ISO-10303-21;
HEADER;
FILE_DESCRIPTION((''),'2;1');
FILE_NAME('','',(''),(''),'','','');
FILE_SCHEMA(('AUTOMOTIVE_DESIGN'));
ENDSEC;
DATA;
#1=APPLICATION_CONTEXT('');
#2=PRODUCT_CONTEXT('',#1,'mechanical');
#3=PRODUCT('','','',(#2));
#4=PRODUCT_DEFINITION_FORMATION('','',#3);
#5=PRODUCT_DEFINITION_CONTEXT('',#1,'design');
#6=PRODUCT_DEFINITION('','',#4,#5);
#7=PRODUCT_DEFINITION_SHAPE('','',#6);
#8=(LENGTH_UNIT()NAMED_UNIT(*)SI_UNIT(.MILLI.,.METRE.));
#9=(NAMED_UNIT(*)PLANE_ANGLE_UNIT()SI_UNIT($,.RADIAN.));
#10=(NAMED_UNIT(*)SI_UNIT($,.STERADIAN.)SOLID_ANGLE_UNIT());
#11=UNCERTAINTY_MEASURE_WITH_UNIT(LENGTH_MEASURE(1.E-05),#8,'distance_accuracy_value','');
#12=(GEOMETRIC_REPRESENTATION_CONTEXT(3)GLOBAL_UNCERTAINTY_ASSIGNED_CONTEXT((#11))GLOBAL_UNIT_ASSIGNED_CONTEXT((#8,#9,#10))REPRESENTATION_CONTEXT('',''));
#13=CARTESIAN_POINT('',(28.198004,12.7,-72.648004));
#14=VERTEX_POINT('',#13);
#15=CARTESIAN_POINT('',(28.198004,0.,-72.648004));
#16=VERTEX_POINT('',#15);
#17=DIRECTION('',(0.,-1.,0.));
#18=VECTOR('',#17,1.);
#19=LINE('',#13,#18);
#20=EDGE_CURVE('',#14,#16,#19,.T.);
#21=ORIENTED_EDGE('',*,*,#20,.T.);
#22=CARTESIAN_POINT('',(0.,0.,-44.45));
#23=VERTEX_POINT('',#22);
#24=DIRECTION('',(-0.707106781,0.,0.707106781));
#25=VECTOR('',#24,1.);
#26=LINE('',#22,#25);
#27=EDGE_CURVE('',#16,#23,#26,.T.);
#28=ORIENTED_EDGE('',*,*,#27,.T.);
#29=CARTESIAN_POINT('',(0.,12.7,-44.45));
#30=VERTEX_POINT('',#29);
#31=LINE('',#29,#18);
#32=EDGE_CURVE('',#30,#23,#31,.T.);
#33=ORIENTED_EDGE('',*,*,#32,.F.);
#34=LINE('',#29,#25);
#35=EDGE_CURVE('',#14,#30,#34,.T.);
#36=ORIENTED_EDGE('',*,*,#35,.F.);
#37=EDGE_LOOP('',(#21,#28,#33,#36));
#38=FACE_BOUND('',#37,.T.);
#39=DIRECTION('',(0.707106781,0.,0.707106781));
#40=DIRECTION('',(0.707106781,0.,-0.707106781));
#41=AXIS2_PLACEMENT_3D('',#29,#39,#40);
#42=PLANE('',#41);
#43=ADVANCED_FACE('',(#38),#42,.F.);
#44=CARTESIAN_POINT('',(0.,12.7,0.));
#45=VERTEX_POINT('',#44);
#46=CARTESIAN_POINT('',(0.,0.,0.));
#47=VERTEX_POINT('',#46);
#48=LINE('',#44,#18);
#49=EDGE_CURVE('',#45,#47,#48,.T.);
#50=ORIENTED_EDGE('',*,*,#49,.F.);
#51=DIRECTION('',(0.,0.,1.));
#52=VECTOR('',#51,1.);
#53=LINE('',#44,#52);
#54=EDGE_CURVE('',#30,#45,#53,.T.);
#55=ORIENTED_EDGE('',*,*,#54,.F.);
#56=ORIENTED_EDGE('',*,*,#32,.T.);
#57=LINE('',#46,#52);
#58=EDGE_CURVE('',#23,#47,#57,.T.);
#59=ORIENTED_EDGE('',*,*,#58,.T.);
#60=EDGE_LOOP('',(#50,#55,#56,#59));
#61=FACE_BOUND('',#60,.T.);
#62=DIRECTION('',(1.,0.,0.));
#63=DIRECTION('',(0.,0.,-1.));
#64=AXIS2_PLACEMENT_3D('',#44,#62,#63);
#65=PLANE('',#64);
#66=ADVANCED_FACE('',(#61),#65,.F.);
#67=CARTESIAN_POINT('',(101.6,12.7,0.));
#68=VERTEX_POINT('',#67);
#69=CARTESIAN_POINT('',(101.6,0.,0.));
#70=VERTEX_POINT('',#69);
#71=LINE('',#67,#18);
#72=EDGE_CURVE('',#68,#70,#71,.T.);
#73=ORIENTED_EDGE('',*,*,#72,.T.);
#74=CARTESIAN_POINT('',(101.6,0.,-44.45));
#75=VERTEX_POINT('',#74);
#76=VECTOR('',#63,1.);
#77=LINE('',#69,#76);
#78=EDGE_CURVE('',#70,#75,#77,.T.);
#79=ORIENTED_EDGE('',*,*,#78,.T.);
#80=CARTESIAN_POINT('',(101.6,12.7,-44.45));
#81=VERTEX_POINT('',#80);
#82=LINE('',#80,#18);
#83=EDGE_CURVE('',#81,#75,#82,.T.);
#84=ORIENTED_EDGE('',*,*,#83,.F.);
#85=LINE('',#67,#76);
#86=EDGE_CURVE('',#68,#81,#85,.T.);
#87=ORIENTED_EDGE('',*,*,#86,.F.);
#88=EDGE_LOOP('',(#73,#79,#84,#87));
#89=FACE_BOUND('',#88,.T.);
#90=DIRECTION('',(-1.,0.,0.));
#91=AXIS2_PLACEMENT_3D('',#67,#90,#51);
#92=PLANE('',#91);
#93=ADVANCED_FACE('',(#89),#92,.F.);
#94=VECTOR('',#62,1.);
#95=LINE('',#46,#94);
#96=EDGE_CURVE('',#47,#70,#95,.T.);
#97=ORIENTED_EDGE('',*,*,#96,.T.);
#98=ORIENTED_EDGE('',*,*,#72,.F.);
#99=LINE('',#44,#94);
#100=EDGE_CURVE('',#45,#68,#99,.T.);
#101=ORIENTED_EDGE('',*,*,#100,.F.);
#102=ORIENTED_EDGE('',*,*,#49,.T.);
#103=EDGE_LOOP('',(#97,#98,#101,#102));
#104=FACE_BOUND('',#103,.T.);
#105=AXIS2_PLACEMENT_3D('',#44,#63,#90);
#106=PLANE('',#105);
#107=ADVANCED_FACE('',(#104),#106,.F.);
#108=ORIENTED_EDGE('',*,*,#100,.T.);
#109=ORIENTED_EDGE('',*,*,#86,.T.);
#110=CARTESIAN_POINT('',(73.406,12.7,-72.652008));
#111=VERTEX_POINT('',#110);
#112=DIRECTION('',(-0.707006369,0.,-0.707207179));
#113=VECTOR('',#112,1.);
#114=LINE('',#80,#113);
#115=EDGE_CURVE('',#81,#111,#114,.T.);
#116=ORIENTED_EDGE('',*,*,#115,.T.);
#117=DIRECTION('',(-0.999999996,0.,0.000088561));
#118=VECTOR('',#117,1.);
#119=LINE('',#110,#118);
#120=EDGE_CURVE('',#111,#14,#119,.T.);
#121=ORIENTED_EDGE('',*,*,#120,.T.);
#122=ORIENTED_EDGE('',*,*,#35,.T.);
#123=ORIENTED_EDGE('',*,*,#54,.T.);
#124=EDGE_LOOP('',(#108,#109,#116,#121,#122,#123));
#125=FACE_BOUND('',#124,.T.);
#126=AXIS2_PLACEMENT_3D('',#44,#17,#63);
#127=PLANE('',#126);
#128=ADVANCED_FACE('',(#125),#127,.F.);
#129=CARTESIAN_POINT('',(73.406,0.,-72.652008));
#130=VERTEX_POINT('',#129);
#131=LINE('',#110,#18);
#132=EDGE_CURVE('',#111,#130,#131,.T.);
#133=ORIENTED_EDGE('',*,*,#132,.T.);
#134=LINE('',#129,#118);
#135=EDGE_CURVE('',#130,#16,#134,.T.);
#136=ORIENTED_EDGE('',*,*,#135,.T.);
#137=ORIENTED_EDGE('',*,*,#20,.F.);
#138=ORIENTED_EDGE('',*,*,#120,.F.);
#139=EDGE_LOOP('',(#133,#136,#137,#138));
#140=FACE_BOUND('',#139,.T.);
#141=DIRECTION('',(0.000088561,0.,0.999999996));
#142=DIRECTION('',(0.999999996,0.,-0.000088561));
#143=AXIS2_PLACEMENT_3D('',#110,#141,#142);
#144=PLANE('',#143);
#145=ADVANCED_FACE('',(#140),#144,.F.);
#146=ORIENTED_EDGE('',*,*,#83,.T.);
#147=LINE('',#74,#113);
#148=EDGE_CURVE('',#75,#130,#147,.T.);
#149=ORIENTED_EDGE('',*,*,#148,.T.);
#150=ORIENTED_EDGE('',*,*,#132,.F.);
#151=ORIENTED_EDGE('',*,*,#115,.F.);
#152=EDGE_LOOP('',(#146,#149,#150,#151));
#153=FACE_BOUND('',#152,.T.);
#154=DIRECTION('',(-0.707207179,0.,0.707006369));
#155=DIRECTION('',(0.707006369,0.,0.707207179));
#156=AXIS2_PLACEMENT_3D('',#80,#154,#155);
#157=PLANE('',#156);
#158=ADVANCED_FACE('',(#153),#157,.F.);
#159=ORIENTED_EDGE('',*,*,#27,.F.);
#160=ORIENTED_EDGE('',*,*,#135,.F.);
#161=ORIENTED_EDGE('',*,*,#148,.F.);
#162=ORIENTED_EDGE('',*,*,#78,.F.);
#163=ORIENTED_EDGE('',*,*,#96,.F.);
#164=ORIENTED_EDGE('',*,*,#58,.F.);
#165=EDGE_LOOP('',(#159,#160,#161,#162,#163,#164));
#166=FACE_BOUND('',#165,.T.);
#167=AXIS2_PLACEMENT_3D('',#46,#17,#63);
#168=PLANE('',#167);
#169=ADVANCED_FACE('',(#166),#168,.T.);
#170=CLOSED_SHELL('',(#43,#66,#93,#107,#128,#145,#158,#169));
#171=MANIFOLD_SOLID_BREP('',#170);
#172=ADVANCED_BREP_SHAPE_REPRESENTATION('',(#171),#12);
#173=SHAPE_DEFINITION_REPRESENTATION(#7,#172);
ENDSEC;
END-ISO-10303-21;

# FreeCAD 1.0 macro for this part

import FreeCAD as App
import Part
import Sketcher
from FreeCAD import Vector
Q = App.Units.Quantity


def add_polygon(sketch, points):
    """Adds a closed chain of lines whose ends are joined by coincident constraints."""
    first, n = sketch.GeometryCount, len(points)
    for a, b in zip(points, points[1:] + points[:1]):
        sketch.addGeometry(Part.LineSegment(App.Vector(*a, 0), App.Vector(*b, 0)), False)
    for i in range(n):
        sketch.addConstraint(Sketcher.Constraint("Coincident", first + i, 2, first + (i + 1) % n, 1))

doc = App.newDocument("Part")
body = doc.addObject("PartDesign::Body", "Body")

sketch1 = body.newObject("Sketcher::SketchObject", "Sketch")
sketch1.AttachmentSupport = (doc.getObject("XZ_Plane"), [""])
sketch1.MapMode = "FlatFace"
add_polygon(sketch1, [(0, 0), (102, 0), (102, -44), (73, -73), (28, -73), (0, -44)])
sketch1.addConstraint(Sketcher.Constraint("Horizontal", 0))
sketch1.addConstraint(Sketcher.Constraint("Vertical", 1))
sketch1.addConstraint(Sketcher.Constraint("Vertical", 5))
sketch1.addConstraint(Sketcher.Constraint("Coincident", 5, 2, -1, 1))
sketch1.addConstraint(Sketcher.Constraint("Horizontal", 1, 2, 4, 2))
sketch1.addConstraint(Sketcher.Constraint("Equal", 2, 4))
sketch1.addConstraint(Sketcher.Constraint("DistanceX", 0, 1, 0, 2, Q("4 in")))
sketch1.addConstraint(Sketcher.Constraint("Angle", 4, Q("135 deg")))
sketch1.addConstraint(Sketcher.Constraint("DistanceY", 1, 2, 1, 1, Q("1.75 in")))
sketch1.addConstraint(Sketcher.Constraint("Distance", 2, Q("1.57 in")))
sketch1.addConstraint(Sketcher.Constraint("DistanceX", -1, 1, 2, 2, Q("2.89 in")))
pad1 = body.newObject("PartDesign::Pad", "Pad")
pad1.Profile = sketch1
pad1.Length = Q("0.5 in")
pad1.Reversed = True

doc.recompute()
